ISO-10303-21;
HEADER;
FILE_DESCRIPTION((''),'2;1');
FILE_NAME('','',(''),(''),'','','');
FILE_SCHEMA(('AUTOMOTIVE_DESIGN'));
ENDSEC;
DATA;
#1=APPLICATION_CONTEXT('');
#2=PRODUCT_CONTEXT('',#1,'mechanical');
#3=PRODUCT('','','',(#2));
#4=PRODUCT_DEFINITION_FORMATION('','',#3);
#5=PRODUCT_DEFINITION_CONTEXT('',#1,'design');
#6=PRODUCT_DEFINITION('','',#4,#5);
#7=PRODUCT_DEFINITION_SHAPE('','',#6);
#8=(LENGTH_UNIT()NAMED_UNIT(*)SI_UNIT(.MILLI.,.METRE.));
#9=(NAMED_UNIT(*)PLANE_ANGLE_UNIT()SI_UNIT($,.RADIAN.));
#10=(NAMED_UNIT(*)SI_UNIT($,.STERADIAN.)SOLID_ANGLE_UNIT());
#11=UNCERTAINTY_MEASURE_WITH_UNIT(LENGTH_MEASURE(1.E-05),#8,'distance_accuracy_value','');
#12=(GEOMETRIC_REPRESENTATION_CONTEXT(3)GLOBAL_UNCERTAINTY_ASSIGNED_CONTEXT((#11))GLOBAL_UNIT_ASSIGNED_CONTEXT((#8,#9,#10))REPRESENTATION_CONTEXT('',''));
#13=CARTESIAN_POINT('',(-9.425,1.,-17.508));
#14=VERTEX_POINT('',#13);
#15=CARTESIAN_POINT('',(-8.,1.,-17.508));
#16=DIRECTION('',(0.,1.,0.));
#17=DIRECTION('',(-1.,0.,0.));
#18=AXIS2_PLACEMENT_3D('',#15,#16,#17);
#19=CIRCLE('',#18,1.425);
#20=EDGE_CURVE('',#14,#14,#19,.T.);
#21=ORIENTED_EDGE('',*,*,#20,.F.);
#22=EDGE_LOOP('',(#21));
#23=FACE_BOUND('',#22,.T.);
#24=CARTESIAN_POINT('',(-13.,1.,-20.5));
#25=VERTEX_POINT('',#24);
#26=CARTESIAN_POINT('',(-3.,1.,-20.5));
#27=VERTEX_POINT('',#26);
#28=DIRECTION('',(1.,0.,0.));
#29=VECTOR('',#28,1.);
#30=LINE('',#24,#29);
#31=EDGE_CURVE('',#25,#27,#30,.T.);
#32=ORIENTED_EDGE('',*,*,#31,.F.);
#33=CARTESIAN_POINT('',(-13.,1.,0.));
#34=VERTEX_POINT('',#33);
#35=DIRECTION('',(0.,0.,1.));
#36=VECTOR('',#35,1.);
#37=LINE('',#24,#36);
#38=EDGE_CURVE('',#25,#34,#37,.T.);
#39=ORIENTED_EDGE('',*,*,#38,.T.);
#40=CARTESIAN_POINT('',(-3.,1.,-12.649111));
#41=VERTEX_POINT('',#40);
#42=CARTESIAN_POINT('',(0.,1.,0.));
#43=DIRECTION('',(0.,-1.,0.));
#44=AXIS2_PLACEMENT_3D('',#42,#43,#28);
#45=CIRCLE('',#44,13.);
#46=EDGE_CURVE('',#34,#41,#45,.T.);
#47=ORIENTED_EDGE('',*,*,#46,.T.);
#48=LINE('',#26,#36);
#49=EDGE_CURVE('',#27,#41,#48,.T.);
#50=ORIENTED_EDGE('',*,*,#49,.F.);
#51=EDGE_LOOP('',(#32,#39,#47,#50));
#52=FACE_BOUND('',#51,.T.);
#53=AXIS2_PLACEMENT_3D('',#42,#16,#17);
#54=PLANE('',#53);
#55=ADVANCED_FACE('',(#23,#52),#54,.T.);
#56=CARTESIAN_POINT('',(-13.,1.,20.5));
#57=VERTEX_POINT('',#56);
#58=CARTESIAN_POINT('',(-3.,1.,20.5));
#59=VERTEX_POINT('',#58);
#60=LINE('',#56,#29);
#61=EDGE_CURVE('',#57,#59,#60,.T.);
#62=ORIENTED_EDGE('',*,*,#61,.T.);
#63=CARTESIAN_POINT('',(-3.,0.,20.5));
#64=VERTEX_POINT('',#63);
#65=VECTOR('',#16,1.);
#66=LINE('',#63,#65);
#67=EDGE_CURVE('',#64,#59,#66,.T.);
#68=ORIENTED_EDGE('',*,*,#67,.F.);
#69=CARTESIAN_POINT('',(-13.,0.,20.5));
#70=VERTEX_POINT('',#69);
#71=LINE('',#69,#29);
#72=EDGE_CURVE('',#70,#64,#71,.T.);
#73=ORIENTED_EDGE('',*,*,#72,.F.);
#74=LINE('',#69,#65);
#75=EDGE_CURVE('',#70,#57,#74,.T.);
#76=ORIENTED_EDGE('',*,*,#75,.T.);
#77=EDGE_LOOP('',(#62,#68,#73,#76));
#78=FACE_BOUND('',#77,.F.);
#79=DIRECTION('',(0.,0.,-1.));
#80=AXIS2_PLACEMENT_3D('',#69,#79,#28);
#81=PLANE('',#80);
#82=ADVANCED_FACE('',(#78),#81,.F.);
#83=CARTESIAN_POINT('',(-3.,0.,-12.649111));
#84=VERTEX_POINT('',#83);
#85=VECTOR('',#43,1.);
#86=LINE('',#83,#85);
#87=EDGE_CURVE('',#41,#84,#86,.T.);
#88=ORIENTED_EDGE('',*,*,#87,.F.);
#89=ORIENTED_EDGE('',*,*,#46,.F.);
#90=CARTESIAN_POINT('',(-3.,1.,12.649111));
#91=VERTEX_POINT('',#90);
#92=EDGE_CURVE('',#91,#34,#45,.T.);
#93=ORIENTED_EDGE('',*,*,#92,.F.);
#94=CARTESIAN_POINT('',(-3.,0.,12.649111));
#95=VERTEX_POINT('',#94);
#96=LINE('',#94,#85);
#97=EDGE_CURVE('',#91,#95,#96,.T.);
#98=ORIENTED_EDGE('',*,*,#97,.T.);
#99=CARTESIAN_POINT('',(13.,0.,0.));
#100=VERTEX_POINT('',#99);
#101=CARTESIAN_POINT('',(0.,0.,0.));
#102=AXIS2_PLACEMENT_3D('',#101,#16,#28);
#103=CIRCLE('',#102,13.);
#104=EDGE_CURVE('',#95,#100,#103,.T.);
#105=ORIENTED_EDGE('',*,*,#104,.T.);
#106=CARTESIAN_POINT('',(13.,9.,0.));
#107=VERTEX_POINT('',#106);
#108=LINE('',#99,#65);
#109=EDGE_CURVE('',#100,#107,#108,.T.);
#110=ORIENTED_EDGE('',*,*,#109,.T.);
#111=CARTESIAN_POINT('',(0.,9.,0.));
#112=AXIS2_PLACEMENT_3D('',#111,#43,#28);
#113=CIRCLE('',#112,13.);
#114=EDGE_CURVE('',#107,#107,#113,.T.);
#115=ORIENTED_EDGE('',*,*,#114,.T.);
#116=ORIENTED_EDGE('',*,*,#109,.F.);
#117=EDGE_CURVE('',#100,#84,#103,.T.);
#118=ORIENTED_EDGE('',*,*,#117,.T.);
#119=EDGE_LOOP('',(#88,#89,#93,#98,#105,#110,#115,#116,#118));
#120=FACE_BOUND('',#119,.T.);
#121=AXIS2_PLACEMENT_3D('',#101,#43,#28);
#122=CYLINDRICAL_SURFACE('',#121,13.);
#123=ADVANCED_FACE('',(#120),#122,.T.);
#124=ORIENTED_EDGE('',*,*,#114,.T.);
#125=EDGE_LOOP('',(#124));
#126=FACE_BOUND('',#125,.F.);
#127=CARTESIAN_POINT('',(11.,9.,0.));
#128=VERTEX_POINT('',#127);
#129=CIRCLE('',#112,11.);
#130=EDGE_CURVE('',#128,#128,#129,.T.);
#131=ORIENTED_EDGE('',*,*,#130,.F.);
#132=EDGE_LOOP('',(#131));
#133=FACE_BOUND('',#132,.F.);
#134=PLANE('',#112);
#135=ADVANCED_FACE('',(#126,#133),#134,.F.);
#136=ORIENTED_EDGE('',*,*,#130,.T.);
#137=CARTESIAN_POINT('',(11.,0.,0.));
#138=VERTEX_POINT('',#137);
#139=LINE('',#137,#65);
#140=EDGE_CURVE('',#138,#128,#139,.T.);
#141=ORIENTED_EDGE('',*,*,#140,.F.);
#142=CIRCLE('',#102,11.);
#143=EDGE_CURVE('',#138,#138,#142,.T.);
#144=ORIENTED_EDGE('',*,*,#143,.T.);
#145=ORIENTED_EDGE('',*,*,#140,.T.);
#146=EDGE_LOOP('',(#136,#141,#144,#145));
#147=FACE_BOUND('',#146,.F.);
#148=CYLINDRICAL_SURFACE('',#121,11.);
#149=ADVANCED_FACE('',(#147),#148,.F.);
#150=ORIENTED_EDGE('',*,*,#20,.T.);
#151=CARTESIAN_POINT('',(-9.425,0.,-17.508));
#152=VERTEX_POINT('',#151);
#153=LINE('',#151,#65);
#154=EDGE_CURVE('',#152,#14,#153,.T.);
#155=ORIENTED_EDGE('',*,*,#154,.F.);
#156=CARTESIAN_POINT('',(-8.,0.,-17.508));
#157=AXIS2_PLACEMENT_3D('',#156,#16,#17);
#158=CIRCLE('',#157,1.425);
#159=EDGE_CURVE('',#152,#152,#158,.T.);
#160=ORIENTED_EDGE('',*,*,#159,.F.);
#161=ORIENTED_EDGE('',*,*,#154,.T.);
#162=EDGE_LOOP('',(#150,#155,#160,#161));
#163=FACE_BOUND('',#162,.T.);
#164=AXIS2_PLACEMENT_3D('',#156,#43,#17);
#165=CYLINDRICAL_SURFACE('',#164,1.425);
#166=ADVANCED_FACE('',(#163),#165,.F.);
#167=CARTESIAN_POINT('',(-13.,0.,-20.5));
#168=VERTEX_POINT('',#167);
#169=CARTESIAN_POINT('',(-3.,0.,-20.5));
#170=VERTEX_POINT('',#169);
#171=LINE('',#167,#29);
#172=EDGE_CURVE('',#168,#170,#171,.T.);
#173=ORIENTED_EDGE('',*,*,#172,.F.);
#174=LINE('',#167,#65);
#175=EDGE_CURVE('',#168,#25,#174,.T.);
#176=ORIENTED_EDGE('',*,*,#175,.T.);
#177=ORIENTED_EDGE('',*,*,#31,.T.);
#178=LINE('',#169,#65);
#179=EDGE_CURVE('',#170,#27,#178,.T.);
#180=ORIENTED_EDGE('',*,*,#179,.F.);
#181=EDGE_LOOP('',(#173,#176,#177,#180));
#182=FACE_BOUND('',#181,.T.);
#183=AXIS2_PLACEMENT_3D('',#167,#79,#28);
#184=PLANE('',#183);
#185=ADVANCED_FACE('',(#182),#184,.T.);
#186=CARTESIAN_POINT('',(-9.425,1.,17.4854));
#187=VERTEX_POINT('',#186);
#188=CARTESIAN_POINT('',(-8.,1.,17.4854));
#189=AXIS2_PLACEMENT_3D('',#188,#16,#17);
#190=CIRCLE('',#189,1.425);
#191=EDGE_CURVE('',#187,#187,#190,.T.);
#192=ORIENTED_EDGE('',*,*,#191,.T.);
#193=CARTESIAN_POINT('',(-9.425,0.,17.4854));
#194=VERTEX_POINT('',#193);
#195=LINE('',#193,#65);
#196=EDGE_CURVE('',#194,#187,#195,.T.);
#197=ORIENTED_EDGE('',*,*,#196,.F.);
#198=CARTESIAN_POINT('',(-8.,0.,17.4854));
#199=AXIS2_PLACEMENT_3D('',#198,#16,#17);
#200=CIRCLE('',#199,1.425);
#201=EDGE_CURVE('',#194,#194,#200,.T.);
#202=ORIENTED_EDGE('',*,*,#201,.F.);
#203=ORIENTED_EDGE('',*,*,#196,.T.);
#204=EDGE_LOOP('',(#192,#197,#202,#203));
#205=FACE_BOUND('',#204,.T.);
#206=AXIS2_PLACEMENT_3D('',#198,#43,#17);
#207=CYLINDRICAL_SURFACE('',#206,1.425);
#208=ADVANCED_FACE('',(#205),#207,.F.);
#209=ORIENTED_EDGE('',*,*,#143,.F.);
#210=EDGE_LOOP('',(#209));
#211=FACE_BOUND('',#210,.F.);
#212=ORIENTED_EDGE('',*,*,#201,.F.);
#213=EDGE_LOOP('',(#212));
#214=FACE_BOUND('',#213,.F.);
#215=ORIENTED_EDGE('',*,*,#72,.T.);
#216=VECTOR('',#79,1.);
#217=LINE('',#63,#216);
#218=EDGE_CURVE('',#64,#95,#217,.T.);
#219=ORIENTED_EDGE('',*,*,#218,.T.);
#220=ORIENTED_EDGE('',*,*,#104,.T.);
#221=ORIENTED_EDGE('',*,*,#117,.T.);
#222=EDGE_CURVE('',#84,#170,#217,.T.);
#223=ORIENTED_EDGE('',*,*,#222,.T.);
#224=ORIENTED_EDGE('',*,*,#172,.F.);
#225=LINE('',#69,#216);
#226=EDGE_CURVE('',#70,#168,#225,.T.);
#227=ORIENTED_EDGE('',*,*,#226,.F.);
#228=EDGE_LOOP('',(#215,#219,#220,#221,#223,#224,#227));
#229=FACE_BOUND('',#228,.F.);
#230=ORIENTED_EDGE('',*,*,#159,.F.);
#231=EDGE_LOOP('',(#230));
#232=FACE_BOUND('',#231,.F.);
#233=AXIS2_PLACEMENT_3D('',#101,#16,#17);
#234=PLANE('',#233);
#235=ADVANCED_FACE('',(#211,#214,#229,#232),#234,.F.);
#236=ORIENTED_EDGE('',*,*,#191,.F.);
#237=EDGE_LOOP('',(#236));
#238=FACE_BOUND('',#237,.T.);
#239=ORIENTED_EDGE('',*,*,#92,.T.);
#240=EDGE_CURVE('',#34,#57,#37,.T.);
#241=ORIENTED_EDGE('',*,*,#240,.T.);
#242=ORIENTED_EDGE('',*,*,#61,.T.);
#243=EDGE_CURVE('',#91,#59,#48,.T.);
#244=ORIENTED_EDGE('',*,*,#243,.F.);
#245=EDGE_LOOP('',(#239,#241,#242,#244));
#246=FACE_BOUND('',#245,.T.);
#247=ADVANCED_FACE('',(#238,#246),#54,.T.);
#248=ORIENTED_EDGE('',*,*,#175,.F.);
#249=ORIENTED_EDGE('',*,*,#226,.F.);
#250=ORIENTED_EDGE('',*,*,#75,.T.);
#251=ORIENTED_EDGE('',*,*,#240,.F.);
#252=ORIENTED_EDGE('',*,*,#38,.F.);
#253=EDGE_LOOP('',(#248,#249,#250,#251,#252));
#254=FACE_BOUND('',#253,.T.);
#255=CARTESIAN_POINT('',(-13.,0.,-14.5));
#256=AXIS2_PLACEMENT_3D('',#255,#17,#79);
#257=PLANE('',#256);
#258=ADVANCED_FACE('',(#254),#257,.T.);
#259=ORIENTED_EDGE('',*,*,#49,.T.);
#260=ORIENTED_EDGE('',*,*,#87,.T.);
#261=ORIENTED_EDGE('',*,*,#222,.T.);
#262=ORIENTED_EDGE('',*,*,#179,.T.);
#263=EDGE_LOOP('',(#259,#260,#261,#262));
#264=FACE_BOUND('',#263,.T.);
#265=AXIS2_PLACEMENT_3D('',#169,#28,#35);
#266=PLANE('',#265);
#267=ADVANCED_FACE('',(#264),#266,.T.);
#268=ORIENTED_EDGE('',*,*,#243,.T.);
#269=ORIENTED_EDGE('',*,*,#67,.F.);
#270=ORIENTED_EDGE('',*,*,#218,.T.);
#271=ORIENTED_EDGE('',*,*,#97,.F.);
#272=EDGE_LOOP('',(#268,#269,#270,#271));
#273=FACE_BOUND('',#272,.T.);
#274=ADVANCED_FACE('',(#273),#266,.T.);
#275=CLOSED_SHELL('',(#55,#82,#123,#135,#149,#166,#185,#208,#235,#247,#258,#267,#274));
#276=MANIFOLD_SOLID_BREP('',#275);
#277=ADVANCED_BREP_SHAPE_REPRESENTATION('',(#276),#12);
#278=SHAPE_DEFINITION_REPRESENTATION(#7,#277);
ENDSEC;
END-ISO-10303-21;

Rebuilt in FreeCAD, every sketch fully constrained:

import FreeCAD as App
import Part
import Sketcher
Q = App.Units.Quantity

doc = App.newDocument("Part")
body = doc.addObject("PartDesign::Body", "Body")

# Sketch on XZ plane
sketch1 = body.newObject("Sketcher::SketchObject", "Sketch")
sketch1.AttachmentSupport = (doc.getObject("XZ_Plane"), [""])
sketch1.MapMode = "FlatFace"
sketch1.addGeometry(Part.LineSegment(App.Vector(-3, -20.5, 0), App.Vector(-13, -20.5, 0)), False)
sketch1.addGeometry(Part.LineSegment(App.Vector(-13, -20.5, 0), App.Vector(-13, 20.5, 0)), False)
sketch1.addGeometry(Part.LineSegment(App.Vector(-13, 20.5, 0), App.Vector(-3, 20.5, 0)), False)
sketch1.addGeometry(Part.LineSegment(App.Vector(-3, 20.5, 0), App.Vector(-3, -20.5, 0)), False)
sketch1.addGeometry(Part.Circle(App.Vector(-8, -17.508, 0), App.Vector(0, 0, 1), 1.425), False)
sketch1.addGeometry(Part.Circle(App.Vector(-8, 17.4854, 0), App.Vector(0, 0, 1), 1.425), False)
sketch1.addConstraint(Sketcher.Constraint("Coincident", 0, 2, 1, 1))
sketch1.addConstraint(Sketcher.Constraint("Coincident", 1, 2, 2, 1))
sketch1.addConstraint(Sketcher.Constraint("Coincident", 2, 2, 3, 1))
sketch1.addConstraint(Sketcher.Constraint("Coincident", 3, 2, 0, 1))
sketch1.addConstraint(Sketcher.Constraint("Horizontal", 0))
sketch1.addConstraint(Sketcher.Constraint("Vertical", 1))
sketch1.addConstraint(Sketcher.Constraint("Horizontal", 2))
sketch1.addConstraint(Sketcher.Constraint("Vertical", 3))
sketch1.addConstraint(Sketcher.Constraint("Equal", 4, 5))
sketch1.addConstraint(Sketcher.Constraint("Vertical", 4, 3, 5, 3))
sketch1.addConstraint(Sketcher.Constraint("DistanceX", 0, 2, 0, 1, Q("10 mm")))
sketch1.addConstraint(Sketcher.Constraint("DistanceY", 1, 1, 1, 2, Q("41 mm")))
sketch1.addConstraint(Sketcher.Constraint("Diameter", 4, Q("2.85 mm")))
sketch1.addConstraint(Sketcher.Constraint("DistanceX", 4, 3, -1, 1, Q("8 mm")))
sketch1.addConstraint(Sketcher.Constraint("DistanceX", 0, 2, -1, 1, Q("13 mm")))
sketch1.addConstraint(Sketcher.Constraint("DistanceY", 0, 2, -1, 1, Q("20.5 mm")))
sketch1.addConstraint(Sketcher.Constraint("DistanceY", 4, 3, -1, 1, Q("17.508 mm")))
sketch1.addConstraint(Sketcher.Constraint("DistanceY", -1, 1, 5, 3, Q("17.4854 mm")))
pad1 = body.newObject("PartDesign::Pad", "Pad")
pad1.Profile = sketch1
pad1.Length = 1
pad1.Reversed = True

# Sketch on XZ plane
sketch2 = body.newObject("Sketcher::SketchObject", "Sketch001")
sketch2.AttachmentSupport = (doc.getObject("XZ_Plane"), [""])
sketch2.MapMode = "FlatFace"
sketch2.addGeometry(Part.Circle(App.Vector(0, 0, 0), App.Vector(0, 0, 1), 13), False)
sketch2.addGeometry(Part.Circle(App.Vector(0, 0, 0), App.Vector(0, 0, 1), 11), False)
sketch2.addConstraint(Sketcher.Constraint("Coincident", 0, 3, -1, 1))
sketch2.addConstraint(Sketcher.Constraint("Coincident", 1, 3, -1, 1))
sketch2.addConstraint(Sketcher.Constraint("Diameter", 0, Q("26 mm")))
sketch2.addConstraint(Sketcher.Constraint("Diameter", 1, Q("22 mm")))
pad2 = body.newObject("PartDesign::Pad", "Pad001")
pad2.Profile = sketch2
pad2.Length = 9
pad2.Reversed = True

# Sketch on XZ plane
sketch3 = body.newObject("Sketcher::SketchObject", "Sketch002")
sketch3.AttachmentSupport = (doc.getObject("XZ_Plane"), [""])
sketch3.MapMode = "FlatFace"
sketch3.AttachmentOffset = App.Placement(App.Vector(0, 0, -9), App.Rotation())
sketch3.addGeometry(Part.Circle(App.Vector(0, 0, 0), App.Vector(0, 0, 1), 11), False)
sketch3.addConstraint(Sketcher.Constraint("Coincident", 0, 3, -1, 1))
sketch3.addConstraint(Sketcher.Constraint("Diameter", 0, Q("22 mm")))
pocket1 = body.newObject("PartDesign::Pocket", "Pocket")
pocket1.Profile = sketch3
pocket1.Type = "ThroughAll"
pocket1.Reversed = True

doc.recompute()
